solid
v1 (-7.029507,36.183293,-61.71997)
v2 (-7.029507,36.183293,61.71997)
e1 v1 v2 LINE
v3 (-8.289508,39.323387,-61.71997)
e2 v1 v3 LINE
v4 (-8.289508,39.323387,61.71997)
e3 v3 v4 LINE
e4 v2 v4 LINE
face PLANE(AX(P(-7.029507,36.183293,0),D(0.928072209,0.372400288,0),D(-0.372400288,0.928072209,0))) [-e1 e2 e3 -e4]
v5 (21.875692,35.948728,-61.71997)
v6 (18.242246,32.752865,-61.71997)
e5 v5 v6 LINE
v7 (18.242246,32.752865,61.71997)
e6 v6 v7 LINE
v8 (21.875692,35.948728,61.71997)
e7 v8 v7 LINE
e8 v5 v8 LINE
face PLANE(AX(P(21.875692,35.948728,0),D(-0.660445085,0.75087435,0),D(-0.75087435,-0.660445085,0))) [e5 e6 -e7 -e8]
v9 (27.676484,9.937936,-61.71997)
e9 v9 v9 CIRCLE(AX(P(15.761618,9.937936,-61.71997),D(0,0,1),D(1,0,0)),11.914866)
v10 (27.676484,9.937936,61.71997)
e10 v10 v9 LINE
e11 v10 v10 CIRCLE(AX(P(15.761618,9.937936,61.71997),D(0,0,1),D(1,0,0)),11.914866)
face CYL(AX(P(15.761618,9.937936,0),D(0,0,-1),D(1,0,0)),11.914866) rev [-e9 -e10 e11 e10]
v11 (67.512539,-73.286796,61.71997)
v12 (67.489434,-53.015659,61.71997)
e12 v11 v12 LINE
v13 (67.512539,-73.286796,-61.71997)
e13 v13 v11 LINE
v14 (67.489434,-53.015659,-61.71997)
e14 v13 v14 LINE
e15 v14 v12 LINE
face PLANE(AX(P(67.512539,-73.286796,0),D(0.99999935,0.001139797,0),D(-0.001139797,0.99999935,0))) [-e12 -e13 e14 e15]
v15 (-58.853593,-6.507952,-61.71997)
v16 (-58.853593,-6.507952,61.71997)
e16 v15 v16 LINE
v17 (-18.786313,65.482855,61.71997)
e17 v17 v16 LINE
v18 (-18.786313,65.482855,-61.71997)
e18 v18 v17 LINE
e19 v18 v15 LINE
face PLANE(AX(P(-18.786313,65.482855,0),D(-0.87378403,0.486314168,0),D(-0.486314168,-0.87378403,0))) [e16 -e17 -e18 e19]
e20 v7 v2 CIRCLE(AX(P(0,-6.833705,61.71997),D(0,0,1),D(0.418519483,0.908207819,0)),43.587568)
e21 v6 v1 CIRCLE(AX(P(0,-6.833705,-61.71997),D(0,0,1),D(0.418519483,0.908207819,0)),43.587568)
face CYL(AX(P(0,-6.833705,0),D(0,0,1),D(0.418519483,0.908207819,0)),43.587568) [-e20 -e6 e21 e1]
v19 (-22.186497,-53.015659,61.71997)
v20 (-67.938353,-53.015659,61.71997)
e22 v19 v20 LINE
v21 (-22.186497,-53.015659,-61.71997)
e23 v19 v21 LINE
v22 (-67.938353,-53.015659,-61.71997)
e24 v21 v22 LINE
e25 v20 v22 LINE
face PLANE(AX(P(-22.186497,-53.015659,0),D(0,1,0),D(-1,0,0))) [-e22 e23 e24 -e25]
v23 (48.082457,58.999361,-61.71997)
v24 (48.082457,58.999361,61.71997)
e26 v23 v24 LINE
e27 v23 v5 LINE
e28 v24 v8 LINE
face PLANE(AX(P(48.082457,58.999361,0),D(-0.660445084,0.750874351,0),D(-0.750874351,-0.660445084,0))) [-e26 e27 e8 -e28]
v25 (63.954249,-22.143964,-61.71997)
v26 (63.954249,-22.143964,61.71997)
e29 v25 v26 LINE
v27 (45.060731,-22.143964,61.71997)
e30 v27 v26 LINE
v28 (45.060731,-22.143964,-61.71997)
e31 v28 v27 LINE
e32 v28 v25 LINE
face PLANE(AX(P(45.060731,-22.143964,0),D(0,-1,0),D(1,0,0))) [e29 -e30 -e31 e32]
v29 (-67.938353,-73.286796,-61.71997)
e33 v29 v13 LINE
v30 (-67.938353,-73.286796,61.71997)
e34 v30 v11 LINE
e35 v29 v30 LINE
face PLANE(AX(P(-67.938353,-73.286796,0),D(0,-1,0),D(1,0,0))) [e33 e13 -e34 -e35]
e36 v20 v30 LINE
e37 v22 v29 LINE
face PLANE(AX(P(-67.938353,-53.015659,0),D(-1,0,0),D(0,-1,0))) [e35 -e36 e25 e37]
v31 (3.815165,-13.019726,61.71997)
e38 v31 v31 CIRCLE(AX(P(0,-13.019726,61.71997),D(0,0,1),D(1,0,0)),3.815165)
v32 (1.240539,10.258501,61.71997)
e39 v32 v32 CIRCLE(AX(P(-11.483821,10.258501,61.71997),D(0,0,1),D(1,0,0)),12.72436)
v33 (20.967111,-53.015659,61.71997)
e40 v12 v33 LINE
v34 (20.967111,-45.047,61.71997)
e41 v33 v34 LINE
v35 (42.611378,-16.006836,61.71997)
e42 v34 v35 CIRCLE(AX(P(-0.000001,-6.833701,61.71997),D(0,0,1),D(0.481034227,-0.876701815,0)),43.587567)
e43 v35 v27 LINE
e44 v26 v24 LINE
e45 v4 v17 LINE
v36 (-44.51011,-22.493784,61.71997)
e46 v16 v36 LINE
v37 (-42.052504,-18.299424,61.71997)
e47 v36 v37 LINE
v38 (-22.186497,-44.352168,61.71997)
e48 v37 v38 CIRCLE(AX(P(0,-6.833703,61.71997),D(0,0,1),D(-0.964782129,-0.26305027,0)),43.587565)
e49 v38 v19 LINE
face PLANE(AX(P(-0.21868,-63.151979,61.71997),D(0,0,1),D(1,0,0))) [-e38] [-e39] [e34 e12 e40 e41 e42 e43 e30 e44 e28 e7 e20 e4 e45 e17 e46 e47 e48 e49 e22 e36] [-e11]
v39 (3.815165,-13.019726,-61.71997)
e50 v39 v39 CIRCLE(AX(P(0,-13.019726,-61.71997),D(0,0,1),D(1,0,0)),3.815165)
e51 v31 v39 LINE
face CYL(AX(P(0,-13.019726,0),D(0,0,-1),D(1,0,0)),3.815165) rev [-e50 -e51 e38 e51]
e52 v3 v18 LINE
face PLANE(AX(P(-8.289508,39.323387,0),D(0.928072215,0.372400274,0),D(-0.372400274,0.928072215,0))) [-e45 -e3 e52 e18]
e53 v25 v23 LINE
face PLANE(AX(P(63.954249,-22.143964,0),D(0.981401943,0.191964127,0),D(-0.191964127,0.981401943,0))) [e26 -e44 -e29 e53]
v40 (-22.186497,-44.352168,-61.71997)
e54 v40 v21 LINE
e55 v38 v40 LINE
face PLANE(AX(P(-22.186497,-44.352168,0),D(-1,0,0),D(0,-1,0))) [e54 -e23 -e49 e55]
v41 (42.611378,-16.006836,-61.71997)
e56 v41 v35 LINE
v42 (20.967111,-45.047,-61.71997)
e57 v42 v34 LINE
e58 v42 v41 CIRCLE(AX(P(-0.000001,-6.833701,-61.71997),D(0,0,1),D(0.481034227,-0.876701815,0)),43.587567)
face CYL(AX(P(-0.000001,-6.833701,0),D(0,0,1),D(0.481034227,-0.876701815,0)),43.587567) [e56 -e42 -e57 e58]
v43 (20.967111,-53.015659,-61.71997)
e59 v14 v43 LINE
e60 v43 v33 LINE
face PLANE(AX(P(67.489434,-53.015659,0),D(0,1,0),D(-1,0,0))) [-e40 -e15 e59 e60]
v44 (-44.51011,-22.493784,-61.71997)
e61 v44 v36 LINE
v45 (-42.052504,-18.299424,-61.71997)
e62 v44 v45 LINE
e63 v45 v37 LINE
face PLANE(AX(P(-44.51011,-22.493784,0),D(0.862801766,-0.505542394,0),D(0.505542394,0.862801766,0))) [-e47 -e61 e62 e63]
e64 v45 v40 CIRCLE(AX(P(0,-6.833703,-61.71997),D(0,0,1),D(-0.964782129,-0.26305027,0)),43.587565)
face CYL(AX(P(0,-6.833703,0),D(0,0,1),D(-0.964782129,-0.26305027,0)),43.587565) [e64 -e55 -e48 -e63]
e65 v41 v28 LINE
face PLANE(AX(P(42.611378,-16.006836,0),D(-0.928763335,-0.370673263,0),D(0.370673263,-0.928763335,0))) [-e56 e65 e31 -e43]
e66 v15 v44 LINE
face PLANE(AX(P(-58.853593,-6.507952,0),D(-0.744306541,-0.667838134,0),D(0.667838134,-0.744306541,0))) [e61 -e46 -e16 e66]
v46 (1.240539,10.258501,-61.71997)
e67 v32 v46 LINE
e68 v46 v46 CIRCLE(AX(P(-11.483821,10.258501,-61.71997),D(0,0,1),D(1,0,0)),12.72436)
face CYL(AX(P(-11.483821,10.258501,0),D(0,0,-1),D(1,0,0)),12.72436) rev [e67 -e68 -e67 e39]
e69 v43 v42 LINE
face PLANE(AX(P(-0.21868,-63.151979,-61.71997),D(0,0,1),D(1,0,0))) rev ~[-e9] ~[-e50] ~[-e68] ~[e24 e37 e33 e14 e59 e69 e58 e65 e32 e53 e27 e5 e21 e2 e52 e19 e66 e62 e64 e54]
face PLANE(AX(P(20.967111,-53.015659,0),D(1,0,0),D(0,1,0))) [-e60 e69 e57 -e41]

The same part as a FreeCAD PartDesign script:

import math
import FreeCAD as App
import Part
import Sketcher
from FreeCAD import Vector

doc = App.newDocument("Part")
params = doc.addObject("Spreadsheet::Sheet", "Params")
for row, (alias, value) in enumerate([
    ("pad1_length", "123.43994 mm"),
], start=1):
    params.set(f"A{row}", alias)
    params.set(f"B{row}", "=" + value)
    params.setAlias(f"B{row}", alias)

body = doc.addObject("PartDesign::Body", "Body")

# Sketch on XY plane
sketch1 = body.newObject("Sketcher::SketchObject", "Sketch")
sketch1.AttachmentSupport = (doc.getObject("XY_Plane"), [""])
sketch1.MapMode = "FlatFace"
sketch1.addGeometry(Part.LineSegment(Vector(-67.938353, -53.015659, 0), Vector(-67.938353, -73.286796, 0)), False)
sketch1.addGeometry(Part.LineSegment(Vector(-67.938353, -73.286796, 0), Vector(67.512539, -73.286796, 0)), False)
sketch1.addGeometry(Part.LineSegment(Vector(67.512539, -73.286796, 0), Vector(67.489434, -53.015659, 0)), False)
sketch1.addGeometry(Part.LineSegment(Vector(67.489434, -53.015659, 0), Vector(20.967111, -53.015659, 0)), False)
sketch1.addGeometry(Part.LineSegment(Vector(20.967111, -53.015659, 0), Vector(20.967111, -45.047, 0)), False)
sketch1.addGeometry(Part.ArcOfCircle(Part.Circle(Vector(-0.000001, -6.833701, 0), Vector(0, 0, 1), 43.587567), math.radians(-61.247029), math.radians(-12.148902)), False)
sketch1.addGeometry(Part.LineSegment(Vector(42.611378, -16.006836, 0), Vector(45.060731, -22.143964, 0)), False)
sketch1.addGeometry(Part.LineSegment(Vector(45.060731, -22.143964, 0), Vector(63.954249, -22.143964, 0)), False)
sketch1.addGeometry(Part.LineSegment(Vector(63.954249, -22.143964, 0), Vector(48.082457, 58.999361, 0)), False)
sketch1.addGeometry(Part.LineSegment(Vector(48.082457, 58.999361, 0), Vector(21.875692, 35.948728, 0)), False)
sketch1.addGeometry(Part.LineSegment(Vector(21.875692, 35.948728, 0), Vector(18.242246, 32.752865, 0)), False)
sketch1.addGeometry(Part.ArcOfCircle(Part.Circle(Vector(0, -6.833705, 0), Vector(0, 0, 1), 43.587568), math.radians(65.258849), math.radians(99.280805)), False)
sketch1.addGeometry(Part.LineSegment(Vector(-7.029507, 36.183293, 0), Vector(-8.289508, 39.323387, 0)), False)
sketch1.addGeometry(Part.LineSegment(Vector(-8.289508, 39.323387, 0), Vector(-18.786313, 65.482855, 0)), False)
sketch1.addGeometry(Part.LineSegment(Vector(-18.786313, 65.482855, 0), Vector(-58.853593, -6.507952, 0)), False)
sketch1.addGeometry(Part.LineSegment(Vector(-58.853593, -6.507952, 0), Vector(-44.51011, -22.493784, 0)), False)
sketch1.addGeometry(Part.LineSegment(Vector(-44.51011, -22.493784, 0), Vector(-42.052504, -18.299424, 0)), False)
sketch1.addGeometry(Part.ArcOfCircle(Part.Circle(Vector(0, -6.833703, 0), Vector(0, 0, 1), 43.587565), math.radians(-164.748868), math.radians(-120.597894)), False)
sketch1.addGeometry(Part.LineSegment(Vector(-22.186497, -44.352168, 0), Vector(-22.186497, -53.015659, 0)), False)
sketch1.addGeometry(Part.LineSegment(Vector(-22.186497, -53.015659, 0), Vector(-67.938353, -53.015659, 0)), False)
sketch1.addGeometry(Part.Circle(Vector(0, -13.019726, 0), Vector(0, 0, 1), 3.815165), False)
sketch1.addGeometry(Part.Circle(Vector(-11.483821, 10.258501, 0), Vector(0, 0, 1), 12.72436), False)
sketch1.addGeometry(Part.Circle(Vector(15.761618, 9.937936, 0), Vector(0, 0, 1), 11.914866), False)
sketch1.addConstraint(Sketcher.Constraint("Coincident", 0, 2, 1, 1))
sketch1.addConstraint(Sketcher.Constraint("Coincident", 1, 2, 2, 1))
sketch1.addConstraint(Sketcher.Constraint("Coincident", 2, 2, 3, 1))
sketch1.addConstraint(Sketcher.Constraint("Coincident", 3, 2, 4, 1))
sketch1.addConstraint(Sketcher.Constraint("Coincident", 4, 2, 5, 1))
sketch1.addConstraint(Sketcher.Constraint("Coincident", 5, 2, 6, 1))
sketch1.addConstraint(Sketcher.Constraint("Coincident", 6, 2, 7, 1))
sketch1.addConstraint(Sketcher.Constraint("Coincident", 7, 2, 8, 1))
sketch1.addConstraint(Sketcher.Constraint("Coincident", 8, 2, 9, 1))
sketch1.addConstraint(Sketcher.Constraint("Coincident", 9, 2, 10, 1))
sketch1.addConstraint(Sketcher.Constraint("Coincident", 10, 2, 11, 1))
sketch1.addConstraint(Sketcher.Constraint("Coincident", 11, 2, 12, 1))
sketch1.addConstraint(Sketcher.Constraint("Coincident", 12, 2, 13, 1))
sketch1.addConstraint(Sketcher.Constraint("Coincident", 13, 2, 14, 1))
sketch1.addConstraint(Sketcher.Constraint("Coincident", 14, 2, 15, 1))
sketch1.addConstraint(Sketcher.Constraint("Coincident", 15, 2, 16, 1))
sketch1.addConstraint(Sketcher.Constraint("Coincident", 16, 2, 17, 1))
sketch1.addConstraint(Sketcher.Constraint("Coincident", 17, 2, 18, 1))
sketch1.addConstraint(Sketcher.Constraint("Coincident", 18, 2, 19, 1))
sketch1.addConstraint(Sketcher.Constraint("Coincident", 19, 2, 0, 1))
sketch1.addConstraint(Sketcher.Constraint("Vertical", 0))
sketch1.addConstraint(Sketcher.Constraint("Horizontal", 1))
sketch1.addConstraint(Sketcher.Constraint("Horizontal", 3))
sketch1.addConstraint(Sketcher.Constraint("Vertical", 4))
sketch1.addConstraint(Sketcher.Constraint("Horizontal", 7))
sketch1.addConstraint(Sketcher.Constraint("Vertical", 18))
sketch1.addConstraint(Sketcher.Constraint("Horizontal", 19))
sketch1.addConstraint(Sketcher.Constraint("Coincident", 11, 3, 5, 3))
sketch1.addConstraint(Sketcher.Constraint("Coincident", 17, 3, 5, 3))
sketch1.addConstraint(Sketcher.Constraint("PointOnObject", 5, 3, -2))
sketch1.addConstraint(Sketcher.Constraint("PointOnObject", 20, 3, -2))
sketch1.addConstraint(Sketcher.Constraint("Diameter", 20, 7.63033))
sketch1.addConstraint(Sketcher.Constraint("Diameter", 21, 25.44872))
sketch1.addConstraint(Sketcher.Constraint("Diameter", 22, 23.829732))
sketch1.addConstraint(Sketcher.Constraint("Radius", 11, 43.587568))
sketch1.addConstraint(Sketcher.Constraint("DistanceX", 12, 2, 11, 2, 1.260001))
sketch1.addConstraint(Sketcher.Constraint("DistanceY", 4, 2, -1, 1, 45.047))
sketch1.addConstraint(Sketcher.Constraint("Radius", 5, 43.587567))
sketch1.addConstraint(Sketcher.Constraint("Radius", 17, 43.587565))
sketch1.addConstraint(Sketcher.Constraint("DistanceX", 7, 1, 7, 2, 18.893518))
sketch1.addConstraint(Sketcher.Constraint("DistanceY", 4, 1, 4, 2, 7.968659))
sketch1.addConstraint(Sketcher.Constraint("DistanceY", 18, 2, 18, 1, 8.663491))
sketch1.addConstraint(Sketcher.Constraint("DistanceY", 5, 3, -1, 1, 6.833701))
sketch1.addConstraint(Sketcher.Constraint("DistanceY", -1, 1, 21, 3, 10.258501))
sketch1.addConstraint(Sketcher.Constraint("DistanceY", 6, 2, 22, 3, 32.0819))
sketch1.addConstraint(Sketcher.Constraint("DistanceX", 11, 2, 9, 2, 28.905199))
sketch1.addConstraint(Sketcher.Constraint("Distance", 2, 20.27115))
sketch1.addConstraint(Sketcher.Constraint("Distance", 6, 6.607849))
sketch1.addConstraint(Sketcher.Constraint("Distance", 8, 82.681032))
sketch1.addConstraint(Sketcher.Constraint("Distance", 12, 3.383459))
sketch1.addConstraint(Sketcher.Constraint("Distance", 13, 28.186888))
sketch1.addConstraint(Sketcher.Constraint("DistanceX", 1, 1, 1, 2, 135.450892))
sketch1.addConstraint(Sketcher.Constraint("DistanceX", 3, 2, 3, 1, 46.522323))
sketch1.addConstraint(Sketcher.Constraint("DistanceX", 19, 2, 19, 1, 45.751856))
sketch1.addConstraint(Sketcher.Constraint("DistanceY", 0, 2, 0, 1, 20.271137))
sketch1.addConstraint(Sketcher.Constraint("DistanceX", 21, 3, -1, 1, 11.483821))
sketch1.addConstraint(Sketcher.Constraint("DistanceX", -1, 1, 5, 2, 42.611378))
sketch1.addConstraint(Sketcher.Constraint("DistanceX", -1, 1, 6, 2, 45.060731))
sketch1.addConstraint(Sketcher.Constraint("DistanceY", -1, 1, 8, 2, 58.999361))
sketch1.addConstraint(Sketcher.Constraint("DistanceY", -1, 1, 9, 2, 35.948728))
sketch1.addConstraint(Sketcher.Constraint("DistanceX", 15, 2, -1, 1, 44.51011))
sketch1.addConstraint(Sketcher.Constraint("DistanceY", 20, 3, 11, 3, 6.186021))
sketch1.addConstraint(Sketcher.Constraint("DistanceX", 5, 3, 22, 3, 15.761619))
sketch1.addConstraint(Sketcher.Constraint("DistanceX", 17, 3, 9, 2, 21.875692))
sketch1.addConstraint(Sketcher.Constraint("DistanceX", 22, 3, 10, 2, 2.480628))
sketch1.addConstraint(Sketcher.Constraint("DistanceY", 12, 2, 13, 2, 26.159468))
sketch1.addConstraint(Sketcher.Constraint("DistanceX", 14, 2, 21, 3, 47.369772))
sketch1.addConstraint(Sketcher.Constraint("DistanceY", 5, 3, 14, 2, 0.325749))
sketch1.addConstraint(Sketcher.Constraint("DistanceY", 15, 2, 20, 3, 9.474058))
sketch1.addConstraint(Sketcher.Constraint("DistanceY", 15, 2, 16, 2, 4.19436))
pad1 = body.newObject("PartDesign::Pad", "Pad")
pad1.Profile = sketch1
pad1.setExpression("Length", "Params.pad1_length")
pad1.Midplane = True

doc.recompute()
